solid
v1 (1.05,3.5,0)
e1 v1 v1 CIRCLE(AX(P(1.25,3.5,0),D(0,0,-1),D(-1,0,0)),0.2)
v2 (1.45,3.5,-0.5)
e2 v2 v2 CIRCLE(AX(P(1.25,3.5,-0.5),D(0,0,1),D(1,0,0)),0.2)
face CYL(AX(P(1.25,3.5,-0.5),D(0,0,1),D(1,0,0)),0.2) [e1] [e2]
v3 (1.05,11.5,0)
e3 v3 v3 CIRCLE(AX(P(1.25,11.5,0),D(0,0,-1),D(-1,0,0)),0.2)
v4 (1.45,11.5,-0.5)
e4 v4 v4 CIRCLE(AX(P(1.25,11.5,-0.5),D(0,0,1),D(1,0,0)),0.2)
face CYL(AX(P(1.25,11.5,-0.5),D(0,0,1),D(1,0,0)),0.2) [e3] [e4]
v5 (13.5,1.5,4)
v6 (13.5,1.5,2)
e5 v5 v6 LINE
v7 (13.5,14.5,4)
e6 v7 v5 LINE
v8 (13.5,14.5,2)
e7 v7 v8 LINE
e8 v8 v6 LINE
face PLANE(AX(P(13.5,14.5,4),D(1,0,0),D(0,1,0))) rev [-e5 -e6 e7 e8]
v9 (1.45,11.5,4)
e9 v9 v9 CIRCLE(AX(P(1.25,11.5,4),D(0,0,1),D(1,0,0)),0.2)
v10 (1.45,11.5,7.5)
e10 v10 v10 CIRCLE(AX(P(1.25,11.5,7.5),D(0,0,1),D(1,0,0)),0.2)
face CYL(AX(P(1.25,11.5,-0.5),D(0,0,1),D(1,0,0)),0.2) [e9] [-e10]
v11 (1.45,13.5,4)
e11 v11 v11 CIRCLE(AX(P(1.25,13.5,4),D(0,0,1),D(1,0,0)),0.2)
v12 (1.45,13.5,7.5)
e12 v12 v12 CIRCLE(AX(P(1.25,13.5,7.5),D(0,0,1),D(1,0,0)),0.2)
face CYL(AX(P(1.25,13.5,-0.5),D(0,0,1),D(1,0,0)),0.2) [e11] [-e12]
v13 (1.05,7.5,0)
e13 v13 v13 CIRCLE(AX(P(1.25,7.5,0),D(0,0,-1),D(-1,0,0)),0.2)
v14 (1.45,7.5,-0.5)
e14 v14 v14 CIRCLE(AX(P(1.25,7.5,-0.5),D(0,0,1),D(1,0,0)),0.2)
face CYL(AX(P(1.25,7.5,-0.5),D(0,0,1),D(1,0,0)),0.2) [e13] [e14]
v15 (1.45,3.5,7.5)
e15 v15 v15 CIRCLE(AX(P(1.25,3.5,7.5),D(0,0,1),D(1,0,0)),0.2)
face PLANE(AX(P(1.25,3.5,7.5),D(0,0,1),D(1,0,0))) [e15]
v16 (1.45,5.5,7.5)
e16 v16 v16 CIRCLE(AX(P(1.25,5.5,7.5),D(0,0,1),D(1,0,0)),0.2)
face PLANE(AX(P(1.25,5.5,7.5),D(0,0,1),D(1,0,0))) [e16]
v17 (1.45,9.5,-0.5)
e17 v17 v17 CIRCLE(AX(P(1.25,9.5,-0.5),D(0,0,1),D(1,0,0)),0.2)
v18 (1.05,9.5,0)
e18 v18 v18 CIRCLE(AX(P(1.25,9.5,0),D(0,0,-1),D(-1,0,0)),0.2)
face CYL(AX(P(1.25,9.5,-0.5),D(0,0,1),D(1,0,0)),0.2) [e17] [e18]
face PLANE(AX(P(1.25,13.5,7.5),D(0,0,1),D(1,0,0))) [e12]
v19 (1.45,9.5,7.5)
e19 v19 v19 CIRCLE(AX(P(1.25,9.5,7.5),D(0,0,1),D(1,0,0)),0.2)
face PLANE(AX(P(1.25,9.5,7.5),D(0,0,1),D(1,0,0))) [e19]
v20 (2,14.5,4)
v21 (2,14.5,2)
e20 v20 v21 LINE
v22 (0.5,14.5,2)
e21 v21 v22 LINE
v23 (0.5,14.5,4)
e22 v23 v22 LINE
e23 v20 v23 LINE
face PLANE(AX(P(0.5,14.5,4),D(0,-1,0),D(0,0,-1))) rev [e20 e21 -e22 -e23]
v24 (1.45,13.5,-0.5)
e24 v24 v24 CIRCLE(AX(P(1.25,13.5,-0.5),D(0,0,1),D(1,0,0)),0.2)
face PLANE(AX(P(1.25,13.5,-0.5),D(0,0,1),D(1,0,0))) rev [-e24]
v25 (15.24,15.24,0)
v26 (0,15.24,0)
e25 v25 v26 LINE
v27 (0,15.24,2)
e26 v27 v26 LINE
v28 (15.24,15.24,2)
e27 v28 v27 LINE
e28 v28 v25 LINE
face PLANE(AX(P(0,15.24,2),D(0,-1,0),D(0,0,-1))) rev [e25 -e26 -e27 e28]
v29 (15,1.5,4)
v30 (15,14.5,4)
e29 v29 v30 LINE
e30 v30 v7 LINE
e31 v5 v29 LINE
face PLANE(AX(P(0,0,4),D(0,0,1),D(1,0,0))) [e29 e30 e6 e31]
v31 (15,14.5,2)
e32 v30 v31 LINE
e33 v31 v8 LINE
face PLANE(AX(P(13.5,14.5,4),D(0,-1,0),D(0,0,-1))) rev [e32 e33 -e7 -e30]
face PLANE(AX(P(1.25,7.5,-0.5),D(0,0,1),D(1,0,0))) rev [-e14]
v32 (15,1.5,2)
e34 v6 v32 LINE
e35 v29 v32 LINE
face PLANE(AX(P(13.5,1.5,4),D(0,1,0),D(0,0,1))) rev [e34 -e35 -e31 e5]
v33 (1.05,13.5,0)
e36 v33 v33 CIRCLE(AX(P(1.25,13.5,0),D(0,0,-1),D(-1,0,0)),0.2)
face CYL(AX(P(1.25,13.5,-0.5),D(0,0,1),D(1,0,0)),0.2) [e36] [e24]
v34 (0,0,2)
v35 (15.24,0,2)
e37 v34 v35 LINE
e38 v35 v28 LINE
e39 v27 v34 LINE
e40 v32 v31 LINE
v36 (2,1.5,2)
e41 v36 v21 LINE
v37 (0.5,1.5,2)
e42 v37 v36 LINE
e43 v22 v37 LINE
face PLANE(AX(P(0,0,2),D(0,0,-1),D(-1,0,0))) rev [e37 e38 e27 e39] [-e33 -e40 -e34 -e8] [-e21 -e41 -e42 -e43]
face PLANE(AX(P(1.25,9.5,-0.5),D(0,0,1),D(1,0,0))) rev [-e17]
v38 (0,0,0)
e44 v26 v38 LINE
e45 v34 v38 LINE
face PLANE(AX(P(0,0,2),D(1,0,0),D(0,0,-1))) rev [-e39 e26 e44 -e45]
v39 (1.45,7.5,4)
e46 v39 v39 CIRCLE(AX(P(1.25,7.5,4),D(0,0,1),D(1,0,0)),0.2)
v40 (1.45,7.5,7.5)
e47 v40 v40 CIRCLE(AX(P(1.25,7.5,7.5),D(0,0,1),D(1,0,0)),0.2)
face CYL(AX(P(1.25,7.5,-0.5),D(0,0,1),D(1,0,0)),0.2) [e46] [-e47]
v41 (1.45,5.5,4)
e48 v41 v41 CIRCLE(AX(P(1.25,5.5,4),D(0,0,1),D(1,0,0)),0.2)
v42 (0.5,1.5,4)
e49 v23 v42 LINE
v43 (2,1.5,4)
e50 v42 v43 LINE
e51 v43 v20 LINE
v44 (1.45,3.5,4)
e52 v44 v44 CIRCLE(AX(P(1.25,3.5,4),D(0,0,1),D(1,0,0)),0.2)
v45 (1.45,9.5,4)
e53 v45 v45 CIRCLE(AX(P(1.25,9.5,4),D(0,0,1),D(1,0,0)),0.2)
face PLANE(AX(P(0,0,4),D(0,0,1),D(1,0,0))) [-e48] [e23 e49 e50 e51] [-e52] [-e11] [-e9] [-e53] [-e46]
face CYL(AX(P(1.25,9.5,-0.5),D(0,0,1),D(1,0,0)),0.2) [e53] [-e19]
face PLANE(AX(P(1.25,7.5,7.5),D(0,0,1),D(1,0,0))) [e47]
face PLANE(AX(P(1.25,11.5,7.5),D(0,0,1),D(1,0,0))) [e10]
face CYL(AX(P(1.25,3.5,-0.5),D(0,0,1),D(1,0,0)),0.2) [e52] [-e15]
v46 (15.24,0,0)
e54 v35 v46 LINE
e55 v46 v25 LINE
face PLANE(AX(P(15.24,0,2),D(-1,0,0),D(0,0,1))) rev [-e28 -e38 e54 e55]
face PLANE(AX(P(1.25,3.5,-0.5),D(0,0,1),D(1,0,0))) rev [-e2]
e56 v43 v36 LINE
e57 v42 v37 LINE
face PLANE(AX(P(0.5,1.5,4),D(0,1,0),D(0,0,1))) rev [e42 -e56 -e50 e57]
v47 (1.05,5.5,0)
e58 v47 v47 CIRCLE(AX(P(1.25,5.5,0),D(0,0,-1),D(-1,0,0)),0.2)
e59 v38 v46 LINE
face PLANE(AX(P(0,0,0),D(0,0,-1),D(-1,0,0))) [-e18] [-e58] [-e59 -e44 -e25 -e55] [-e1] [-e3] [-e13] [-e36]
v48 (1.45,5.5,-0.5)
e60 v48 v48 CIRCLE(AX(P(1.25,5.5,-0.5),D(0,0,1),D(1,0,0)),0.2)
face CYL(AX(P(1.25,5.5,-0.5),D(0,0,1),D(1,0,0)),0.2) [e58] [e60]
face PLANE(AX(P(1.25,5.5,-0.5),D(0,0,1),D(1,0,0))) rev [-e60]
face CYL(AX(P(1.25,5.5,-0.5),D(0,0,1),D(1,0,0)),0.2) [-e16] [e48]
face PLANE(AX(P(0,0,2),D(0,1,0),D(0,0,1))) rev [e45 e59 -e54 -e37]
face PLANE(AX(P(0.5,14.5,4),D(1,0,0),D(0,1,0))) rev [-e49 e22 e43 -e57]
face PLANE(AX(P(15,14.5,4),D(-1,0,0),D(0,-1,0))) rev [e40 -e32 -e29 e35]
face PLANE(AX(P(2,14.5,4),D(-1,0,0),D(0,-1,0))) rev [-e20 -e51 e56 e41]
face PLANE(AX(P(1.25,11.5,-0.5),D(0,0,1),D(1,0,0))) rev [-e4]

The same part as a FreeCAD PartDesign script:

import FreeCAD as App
import Part
import Sketcher

V = App.Vector
Q = App.Units.Quantity

doc = App.newDocument("Part")
params = doc.addObject("Spreadsheet::Sheet", "Params")
for row, (alias, value) in enumerate([
    ("sketch1_width", "15.24 mm"),
    ("pad1_length", "2 mm"),
    ("sketch2_height", "13 mm"),
    ("sketch2_width", "1.5 mm"),
    ("pad2_length", "2 mm"),
    ("sketch3_diameter", "0.4 mm"),
    ("pad3_length", "3.5 mm"),
    ("pad3_length2", "4.5 mm"),
], start=1):
    params.set(f"A{row}", alias)
    params.set(f"B{row}", "=" + value)
    params.setAlias(f"B{row}", alias)

body = doc.addObject("PartDesign::Body", "Body")

sketch1 = doc.addObject("Sketcher::SketchObject", "Sketch")
body.addObject(sketch1)
sketch1.AttachmentSupport = (doc.XY_Plane, [""])
sketch1.MapMode = "FlatFace"
sketch1.addGeometry([
    Part.LineSegment(V(0, 15, 0), V(0, 0, 0)),
    Part.LineSegment(V(0, 0, 0), V(15, 0, 0)),
    Part.LineSegment(V(15, 0, 0), V(15, 15, 0)),
    Part.LineSegment(V(15, 15, 0), V(0, 15, 0)),
], False)
sketch1.addConstraint([
    Sketcher.Constraint("Coincident", 0, 2, 1, 1),
    Sketcher.Constraint("Coincident", 1, 2, 2, 1),
    Sketcher.Constraint("Coincident", 2, 2, 3, 1),
    Sketcher.Constraint("Coincident", 3, 2, 0, 1),
    Sketcher.Constraint("Vertical", 0),
    Sketcher.Constraint("Horizontal", 1),
    Sketcher.Constraint("Vertical", 2),
    Sketcher.Constraint("Horizontal", 3),
    Sketcher.Constraint("Coincident", 0, 2, -1, 1),
    Sketcher.Constraint("Equal", 3, 0),
    Sketcher.Constraint("DistanceX", 1, 1, 1, 2, Q("15.24 mm")),
])
sketch1.setExpression("Constraints[10]", "Params.sketch1_width")
pad1 = doc.addObject("PartDesign::Pad", "Pad")
body.addObject(pad1)
pad1.Profile = sketch1
pad1.setExpression("Length", "Params.pad1_length")

sketch2 = doc.addObject("Sketcher::SketchObject", "Sketch001")
body.addObject(sketch2)
sketch2.AttachmentSupport = (doc.XY_Plane, [""])
sketch2.MapMode = "FlatFace"
sketch2.AttachmentOffset = App.Placement(V(0, 0, 2), App.Rotation())
sketch2.addGeometry([
    Part.LineSegment(V(13.5, 14.5, 0), V(13.5, 1.5, 0)),
    Part.LineSegment(V(13.5, 1.5, 0), V(15, 1.5, 0)),
    Part.LineSegment(V(15, 1.5, 0), V(15, 14.5, 0)),
    Part.LineSegment(V(15, 14.5, 0), V(13.5, 14.5, 0)),
    Part.LineSegment(V(0.5, 14.5, 0), V(0.5, 1.5, 0)),
    Part.LineSegment(V(0.5, 1.5, 0), V(2, 1.5, 0)),
    Part.LineSegment(V(2, 1.5, 0), V(2, 14.5, 0)),
    Part.LineSegment(V(2, 14.5, 0), V(0.5, 14.5, 0)),
], False)
sketch2.addConstraint([
    Sketcher.Constraint("Coincident", 0, 2, 1, 1),
    Sketcher.Constraint("Coincident", 1, 2, 2, 1),
    Sketcher.Constraint("Coincident", 2, 2, 3, 1),
    Sketcher.Constraint("Coincident", 3, 2, 0, 1),
    Sketcher.Constraint("Coincident", 4, 2, 5, 1),
    Sketcher.Constraint("Coincident", 5, 2, 6, 1),
    Sketcher.Constraint("Coincident", 6, 2, 7, 1),
    Sketcher.Constraint("Coincident", 7, 2, 4, 1),
    Sketcher.Constraint("Vertical", 0),
    Sketcher.Constraint("Horizontal", 1),
    Sketcher.Constraint("Vertical", 2),
    Sketcher.Constraint("Horizontal", 3),
    Sketcher.Constraint("Vertical", 4),
    Sketcher.Constraint("Horizontal", 5),
    Sketcher.Constraint("Vertical", 6),
    Sketcher.Constraint("Horizontal", 7),
    Sketcher.Constraint("Horizontal", 1, 2, 4, 2),
    Sketcher.Constraint("Horizontal", 3, 2, 6, 2),
    Sketcher.Constraint("Equal", 3, 5),
    Sketcher.Constraint("DistanceY", 0, 2, 0, 1, Q("13 mm")),
    Sketcher.Constraint("DistanceX", 1, 1, 1, 2, Q("1.5 mm")),
    Sketcher.Constraint("DistanceX", -1, 1, 1, 2, Q("15 mm")),
    Sketcher.Constraint("DistanceX", -1, 1, 5, 2, Q("2 mm")),
    Sketcher.Constraint("DistanceY", -1, 1, 0, 2, Q("1.5 mm")),
])
sketch2.setExpression("Constraints[19]", "Params.sketch2_height")
sketch2.setExpression("Constraints[20]", "Params.sketch2_width")
pad2 = doc.addObject("PartDesign::Pad", "Pad001")
body.addObject(pad2)
pad2.Profile = sketch2
pad2.setExpression("Length", "Params.pad2_length")

sketch3 = doc.addObject("Sketcher::SketchObject", "Sketch002")
body.addObject(sketch3)
sketch3.AttachmentSupport = (doc.XY_Plane, [""])
sketch3.MapMode = "FlatFace"
sketch3.AttachmentOffset = App.Placement(V(0, 0, 4), App.Rotation())
sketch3.addGeometry([
    Part.Circle(V(1.25, 13.5, 0), V(0, 0, 1), 0.2),
    Part.Circle(V(1.25, 11.5, 0), V(0, 0, 1), 0.2),
    Part.Circle(V(1.25, 9.5, 0), V(0, 0, 1), 0.2),
    Part.Circle(V(1.25, 7.5, 0), V(0, 0, 1), 0.2),
    Part.Circle(V(1.25, 5.5, 0), V(0, 0, 1), 0.2),
    Part.Circle(V(1.25, 3.5, 0), V(0, 0, 1), 0.2),
], False)
sketch3.addConstraint([
    Sketcher.Constraint("Equal", 0, 1),
    Sketcher.Constraint("Equal", 1, 2),
    Sketcher.Constraint("Equal", 2, 3),
    Sketcher.Constraint("Equal", 3, 4),
    Sketcher.Constraint("Equal", 4, 5),
    Sketcher.Constraint("Vertical", 0, 3, 1, 3),
    Sketcher.Constraint("Vertical", 1, 3, 2, 3),
    Sketcher.Constraint("Vertical", 2, 3, 3, 3),
    Sketcher.Constraint("Vertical", 3, 3, 4, 3),
    Sketcher.Constraint("Vertical", 4, 3, 5, 3),
    Sketcher.Constraint("Diameter", 0, Q("0.4 mm")),
    Sketcher.Constraint("DistanceY", 1, 3, 0, 3, Q("2 mm")),
    Sketcher.Constraint("DistanceY", 2, 3, 1, 3, Q("2 mm")),
    Sketcher.Constraint("DistanceY", 3, 3, 2, 3, Q("2 mm")),
    Sketcher.Constraint("DistanceY", 4, 3, 3, 3, Q("2 mm")),
    Sketcher.Constraint("DistanceY", 5, 3, 4, 3, Q("2 mm")),
    Sketcher.Constraint("DistanceY", -1, 1, 0, 3, Q("13.5 mm")),
    Sketcher.Constraint("DistanceX", -1, 1, 0, 3, Q("1.25 mm")),
])
sketch3.setExpression("Constraints[10]", "Params.sketch3_diameter")
pad3 = doc.addObject("PartDesign::Pad", "Pad002")
body.addObject(pad3)
pad3.Profile = sketch3
pad3.Type = "TwoLengths"
pad3.setExpression("Length", "Params.pad3_length")
pad3.setExpression("Length2", "Params.pad3_length2")

doc.recompute()
